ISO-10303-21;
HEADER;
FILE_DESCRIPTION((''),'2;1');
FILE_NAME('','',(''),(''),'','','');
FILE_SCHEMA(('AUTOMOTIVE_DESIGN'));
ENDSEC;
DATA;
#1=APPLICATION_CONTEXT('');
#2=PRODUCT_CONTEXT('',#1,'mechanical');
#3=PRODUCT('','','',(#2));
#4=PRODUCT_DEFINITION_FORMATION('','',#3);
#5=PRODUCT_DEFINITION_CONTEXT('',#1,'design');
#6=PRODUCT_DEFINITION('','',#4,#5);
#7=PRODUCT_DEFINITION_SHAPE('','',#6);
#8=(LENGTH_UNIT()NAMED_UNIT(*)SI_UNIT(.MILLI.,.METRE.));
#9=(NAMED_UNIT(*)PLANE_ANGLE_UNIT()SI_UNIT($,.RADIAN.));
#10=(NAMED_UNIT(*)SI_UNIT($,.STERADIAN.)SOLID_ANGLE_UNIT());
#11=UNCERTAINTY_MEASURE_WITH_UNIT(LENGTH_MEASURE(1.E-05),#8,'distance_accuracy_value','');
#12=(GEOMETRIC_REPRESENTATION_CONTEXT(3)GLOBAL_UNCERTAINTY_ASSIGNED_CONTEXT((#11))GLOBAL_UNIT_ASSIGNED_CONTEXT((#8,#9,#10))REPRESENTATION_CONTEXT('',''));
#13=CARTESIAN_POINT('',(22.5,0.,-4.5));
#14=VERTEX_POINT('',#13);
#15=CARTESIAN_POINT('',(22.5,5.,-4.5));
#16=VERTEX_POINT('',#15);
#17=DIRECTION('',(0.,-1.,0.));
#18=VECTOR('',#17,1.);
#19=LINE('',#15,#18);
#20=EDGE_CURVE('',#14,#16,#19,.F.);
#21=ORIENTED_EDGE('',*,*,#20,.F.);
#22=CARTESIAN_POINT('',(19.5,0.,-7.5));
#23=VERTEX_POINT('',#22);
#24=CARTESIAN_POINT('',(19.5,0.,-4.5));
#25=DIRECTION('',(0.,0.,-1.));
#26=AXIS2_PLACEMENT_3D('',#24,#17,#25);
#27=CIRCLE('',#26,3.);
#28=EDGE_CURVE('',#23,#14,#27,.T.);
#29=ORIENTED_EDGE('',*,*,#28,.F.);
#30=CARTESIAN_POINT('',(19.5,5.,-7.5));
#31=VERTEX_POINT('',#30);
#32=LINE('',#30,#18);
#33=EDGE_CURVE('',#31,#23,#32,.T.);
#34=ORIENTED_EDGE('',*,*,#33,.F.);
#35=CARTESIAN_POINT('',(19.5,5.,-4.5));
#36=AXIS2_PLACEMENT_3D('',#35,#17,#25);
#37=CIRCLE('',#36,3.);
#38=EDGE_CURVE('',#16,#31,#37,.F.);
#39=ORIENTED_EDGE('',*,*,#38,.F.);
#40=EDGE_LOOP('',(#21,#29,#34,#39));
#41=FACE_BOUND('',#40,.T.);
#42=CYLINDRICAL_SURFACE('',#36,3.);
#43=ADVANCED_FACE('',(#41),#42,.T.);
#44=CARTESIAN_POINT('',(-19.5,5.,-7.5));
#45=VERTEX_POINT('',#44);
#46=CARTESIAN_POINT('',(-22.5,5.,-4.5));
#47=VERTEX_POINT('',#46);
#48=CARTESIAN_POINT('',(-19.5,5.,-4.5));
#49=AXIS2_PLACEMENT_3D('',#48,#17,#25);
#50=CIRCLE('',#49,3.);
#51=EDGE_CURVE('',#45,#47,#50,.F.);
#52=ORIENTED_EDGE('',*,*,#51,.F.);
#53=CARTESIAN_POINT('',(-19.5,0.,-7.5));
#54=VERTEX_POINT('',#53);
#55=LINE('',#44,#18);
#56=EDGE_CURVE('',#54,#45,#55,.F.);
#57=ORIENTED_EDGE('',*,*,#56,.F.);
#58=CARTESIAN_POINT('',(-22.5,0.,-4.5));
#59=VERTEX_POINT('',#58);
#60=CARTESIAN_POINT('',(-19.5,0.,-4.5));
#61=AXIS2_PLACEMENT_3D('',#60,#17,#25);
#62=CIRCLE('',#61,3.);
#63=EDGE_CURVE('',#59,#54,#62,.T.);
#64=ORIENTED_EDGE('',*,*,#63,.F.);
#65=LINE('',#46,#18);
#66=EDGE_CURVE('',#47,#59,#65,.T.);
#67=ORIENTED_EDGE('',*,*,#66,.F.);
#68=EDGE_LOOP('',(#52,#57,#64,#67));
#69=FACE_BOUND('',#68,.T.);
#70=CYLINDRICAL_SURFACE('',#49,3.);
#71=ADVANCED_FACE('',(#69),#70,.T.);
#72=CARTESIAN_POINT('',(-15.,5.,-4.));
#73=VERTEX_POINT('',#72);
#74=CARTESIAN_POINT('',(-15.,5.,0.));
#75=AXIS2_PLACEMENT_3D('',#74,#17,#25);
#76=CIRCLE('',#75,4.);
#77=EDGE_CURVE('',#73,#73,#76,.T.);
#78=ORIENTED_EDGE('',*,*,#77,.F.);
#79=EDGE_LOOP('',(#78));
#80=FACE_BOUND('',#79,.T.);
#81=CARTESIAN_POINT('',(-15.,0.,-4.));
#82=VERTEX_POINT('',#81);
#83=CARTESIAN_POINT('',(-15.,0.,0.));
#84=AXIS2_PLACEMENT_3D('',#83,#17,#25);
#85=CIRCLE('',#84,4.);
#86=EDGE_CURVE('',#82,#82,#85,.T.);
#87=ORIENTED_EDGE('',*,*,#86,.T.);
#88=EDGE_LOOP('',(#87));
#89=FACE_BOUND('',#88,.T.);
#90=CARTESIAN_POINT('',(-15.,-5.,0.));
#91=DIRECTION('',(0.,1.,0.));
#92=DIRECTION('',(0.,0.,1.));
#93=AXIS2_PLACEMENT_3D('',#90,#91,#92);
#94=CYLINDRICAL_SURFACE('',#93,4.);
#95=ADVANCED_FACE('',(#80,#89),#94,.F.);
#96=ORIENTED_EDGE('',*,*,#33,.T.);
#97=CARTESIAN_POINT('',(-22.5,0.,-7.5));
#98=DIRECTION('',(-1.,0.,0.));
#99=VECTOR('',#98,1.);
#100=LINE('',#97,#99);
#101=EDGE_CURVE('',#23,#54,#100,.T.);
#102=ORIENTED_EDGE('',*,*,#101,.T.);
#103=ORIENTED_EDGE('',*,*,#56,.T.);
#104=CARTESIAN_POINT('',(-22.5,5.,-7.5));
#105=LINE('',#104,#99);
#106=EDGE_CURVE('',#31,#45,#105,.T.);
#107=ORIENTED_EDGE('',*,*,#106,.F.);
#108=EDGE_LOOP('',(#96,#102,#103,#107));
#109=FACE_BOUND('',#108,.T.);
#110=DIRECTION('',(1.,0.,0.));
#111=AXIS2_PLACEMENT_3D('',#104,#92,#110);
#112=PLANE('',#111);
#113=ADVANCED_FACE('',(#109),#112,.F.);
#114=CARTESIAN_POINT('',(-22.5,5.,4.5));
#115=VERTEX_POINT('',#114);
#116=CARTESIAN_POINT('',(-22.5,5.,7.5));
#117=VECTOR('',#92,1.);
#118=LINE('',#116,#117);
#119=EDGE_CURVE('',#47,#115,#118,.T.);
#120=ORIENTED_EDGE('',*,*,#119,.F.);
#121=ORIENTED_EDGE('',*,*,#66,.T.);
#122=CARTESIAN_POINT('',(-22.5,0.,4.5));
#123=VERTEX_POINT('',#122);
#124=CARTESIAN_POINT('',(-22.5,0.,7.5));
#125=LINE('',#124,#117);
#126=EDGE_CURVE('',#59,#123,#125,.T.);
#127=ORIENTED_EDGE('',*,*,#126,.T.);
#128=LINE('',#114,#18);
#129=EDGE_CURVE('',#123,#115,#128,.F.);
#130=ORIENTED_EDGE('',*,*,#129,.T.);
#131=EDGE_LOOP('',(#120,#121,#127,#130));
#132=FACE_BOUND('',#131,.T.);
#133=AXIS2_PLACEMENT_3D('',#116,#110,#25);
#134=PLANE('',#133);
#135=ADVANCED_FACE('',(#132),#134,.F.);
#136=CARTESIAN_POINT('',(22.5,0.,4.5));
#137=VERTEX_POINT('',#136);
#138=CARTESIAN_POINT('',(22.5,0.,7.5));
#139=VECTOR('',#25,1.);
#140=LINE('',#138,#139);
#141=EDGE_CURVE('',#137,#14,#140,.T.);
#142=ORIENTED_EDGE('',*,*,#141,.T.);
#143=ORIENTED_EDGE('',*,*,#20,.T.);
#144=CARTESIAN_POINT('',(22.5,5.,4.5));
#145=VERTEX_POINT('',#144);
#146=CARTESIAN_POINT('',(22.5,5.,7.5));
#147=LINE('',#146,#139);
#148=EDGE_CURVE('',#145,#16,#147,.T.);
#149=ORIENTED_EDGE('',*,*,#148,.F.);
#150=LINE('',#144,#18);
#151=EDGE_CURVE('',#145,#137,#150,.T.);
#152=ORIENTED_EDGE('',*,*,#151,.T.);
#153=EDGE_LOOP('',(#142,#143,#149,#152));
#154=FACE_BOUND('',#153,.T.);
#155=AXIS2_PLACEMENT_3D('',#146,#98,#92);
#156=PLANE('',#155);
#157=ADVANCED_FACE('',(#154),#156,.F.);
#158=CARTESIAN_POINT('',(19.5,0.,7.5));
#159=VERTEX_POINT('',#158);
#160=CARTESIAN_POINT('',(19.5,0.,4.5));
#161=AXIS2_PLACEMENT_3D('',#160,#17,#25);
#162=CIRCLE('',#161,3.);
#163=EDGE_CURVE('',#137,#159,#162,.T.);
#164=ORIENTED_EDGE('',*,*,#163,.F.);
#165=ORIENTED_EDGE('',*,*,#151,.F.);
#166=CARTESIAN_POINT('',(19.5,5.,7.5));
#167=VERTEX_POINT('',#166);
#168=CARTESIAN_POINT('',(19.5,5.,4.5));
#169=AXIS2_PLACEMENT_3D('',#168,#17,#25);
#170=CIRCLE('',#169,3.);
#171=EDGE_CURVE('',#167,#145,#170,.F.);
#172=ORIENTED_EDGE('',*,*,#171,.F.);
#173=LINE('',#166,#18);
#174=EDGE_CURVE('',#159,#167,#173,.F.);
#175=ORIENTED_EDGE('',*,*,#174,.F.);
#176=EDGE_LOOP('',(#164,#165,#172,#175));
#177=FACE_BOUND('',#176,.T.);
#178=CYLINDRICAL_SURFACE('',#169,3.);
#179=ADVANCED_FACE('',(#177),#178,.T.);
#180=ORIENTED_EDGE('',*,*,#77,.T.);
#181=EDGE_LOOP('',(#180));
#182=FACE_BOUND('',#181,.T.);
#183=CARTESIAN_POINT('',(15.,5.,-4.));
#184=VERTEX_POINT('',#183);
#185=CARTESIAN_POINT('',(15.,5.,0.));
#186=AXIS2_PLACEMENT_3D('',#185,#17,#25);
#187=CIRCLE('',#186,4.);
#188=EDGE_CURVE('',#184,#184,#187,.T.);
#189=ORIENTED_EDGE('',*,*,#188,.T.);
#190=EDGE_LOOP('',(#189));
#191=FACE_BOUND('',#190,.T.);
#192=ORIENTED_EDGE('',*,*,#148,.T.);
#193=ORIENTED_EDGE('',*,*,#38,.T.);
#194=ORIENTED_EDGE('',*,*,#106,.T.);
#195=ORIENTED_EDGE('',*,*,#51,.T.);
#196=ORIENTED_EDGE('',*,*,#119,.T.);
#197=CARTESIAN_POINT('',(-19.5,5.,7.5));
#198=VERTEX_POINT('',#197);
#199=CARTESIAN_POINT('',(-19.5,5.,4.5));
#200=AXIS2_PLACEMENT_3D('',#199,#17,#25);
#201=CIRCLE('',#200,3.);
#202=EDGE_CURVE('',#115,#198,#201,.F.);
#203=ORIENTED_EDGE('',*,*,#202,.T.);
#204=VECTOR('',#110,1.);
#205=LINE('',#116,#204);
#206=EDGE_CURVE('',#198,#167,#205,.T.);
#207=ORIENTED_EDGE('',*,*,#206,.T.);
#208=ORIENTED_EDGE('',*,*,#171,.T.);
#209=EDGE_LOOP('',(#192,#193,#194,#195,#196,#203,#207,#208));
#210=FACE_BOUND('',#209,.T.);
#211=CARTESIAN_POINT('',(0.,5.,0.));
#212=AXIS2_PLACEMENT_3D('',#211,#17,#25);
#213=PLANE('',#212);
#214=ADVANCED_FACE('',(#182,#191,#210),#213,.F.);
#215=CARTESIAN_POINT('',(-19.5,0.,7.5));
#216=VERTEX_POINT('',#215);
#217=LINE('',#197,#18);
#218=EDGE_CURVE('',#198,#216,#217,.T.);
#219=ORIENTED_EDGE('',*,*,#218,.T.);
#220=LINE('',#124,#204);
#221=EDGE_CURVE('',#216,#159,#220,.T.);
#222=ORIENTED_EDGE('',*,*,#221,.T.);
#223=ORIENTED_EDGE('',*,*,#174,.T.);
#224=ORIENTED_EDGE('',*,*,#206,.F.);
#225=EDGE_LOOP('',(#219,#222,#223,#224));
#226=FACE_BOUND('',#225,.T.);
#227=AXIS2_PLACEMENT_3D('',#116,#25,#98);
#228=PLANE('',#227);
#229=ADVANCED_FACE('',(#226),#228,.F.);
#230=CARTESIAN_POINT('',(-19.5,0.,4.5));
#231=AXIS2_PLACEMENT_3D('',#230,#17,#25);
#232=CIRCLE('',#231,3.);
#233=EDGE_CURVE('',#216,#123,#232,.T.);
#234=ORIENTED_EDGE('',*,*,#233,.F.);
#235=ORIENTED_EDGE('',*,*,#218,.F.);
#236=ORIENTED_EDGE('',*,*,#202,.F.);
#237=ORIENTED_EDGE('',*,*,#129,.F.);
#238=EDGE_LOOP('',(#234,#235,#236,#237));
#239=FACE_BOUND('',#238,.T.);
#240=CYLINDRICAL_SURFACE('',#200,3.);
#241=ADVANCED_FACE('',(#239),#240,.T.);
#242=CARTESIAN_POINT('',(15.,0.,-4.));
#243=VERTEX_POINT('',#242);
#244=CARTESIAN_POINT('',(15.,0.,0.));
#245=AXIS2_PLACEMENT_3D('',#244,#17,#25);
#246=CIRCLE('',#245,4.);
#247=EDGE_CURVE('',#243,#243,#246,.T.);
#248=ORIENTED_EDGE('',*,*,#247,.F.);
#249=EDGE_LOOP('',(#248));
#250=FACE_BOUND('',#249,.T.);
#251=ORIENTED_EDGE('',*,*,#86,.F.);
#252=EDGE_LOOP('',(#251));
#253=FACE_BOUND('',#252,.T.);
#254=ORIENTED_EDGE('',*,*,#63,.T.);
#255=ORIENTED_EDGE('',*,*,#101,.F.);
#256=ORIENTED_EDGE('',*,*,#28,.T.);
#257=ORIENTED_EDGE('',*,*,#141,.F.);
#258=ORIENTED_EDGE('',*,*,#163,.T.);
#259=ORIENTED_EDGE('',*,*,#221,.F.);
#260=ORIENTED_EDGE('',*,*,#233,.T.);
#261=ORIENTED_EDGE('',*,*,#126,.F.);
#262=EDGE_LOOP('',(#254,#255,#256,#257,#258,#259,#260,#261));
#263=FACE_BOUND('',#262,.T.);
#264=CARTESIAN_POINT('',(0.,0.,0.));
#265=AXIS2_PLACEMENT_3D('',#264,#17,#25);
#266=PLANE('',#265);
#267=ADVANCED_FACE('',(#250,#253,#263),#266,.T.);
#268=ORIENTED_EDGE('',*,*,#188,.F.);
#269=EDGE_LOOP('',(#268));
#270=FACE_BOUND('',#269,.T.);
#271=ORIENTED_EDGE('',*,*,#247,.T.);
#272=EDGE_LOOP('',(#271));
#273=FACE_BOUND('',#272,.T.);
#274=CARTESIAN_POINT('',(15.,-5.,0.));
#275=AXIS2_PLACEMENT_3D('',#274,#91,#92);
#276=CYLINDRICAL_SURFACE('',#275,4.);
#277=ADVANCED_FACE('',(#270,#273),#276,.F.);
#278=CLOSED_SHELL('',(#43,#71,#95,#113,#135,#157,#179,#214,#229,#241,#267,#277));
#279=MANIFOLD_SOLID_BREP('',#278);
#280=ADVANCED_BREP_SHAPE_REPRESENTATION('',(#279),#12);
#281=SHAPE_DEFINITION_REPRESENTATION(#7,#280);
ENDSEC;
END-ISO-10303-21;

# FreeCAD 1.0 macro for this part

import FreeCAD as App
import Part
import Sketcher

V = App.Vector


def edges_at(feature, points):
    """Names of the edges that pass closest to the given points."""
    edges = feature.Shape.Edges
    near = lambda p: min(range(len(edges)), key=lambda i: edges[i].distToShape(Part.Vertex(*p))[0])
    return sorted({f"Edge{near(p) + 1}" for p in points})


def add_polygon(sketch, points):
    """Adds a closed chain of lines whose ends are joined by coincident constraints."""
    first, n = sketch.GeometryCount, len(points)
    for a, b in zip(points, points[1:] + points[:1]):
        sketch.addGeometry(Part.LineSegment(App.Vector(*a, 0), App.Vector(*b, 0)), False)
    for i in range(n):
        sketch.addConstraint(Sketcher.Constraint("Coincident", first + i, 2, first + (i + 1) % n, 1))

doc = App.newDocument("Part")
params = doc.addObject("Spreadsheet::Sheet", "Params")
for row, (alias, value) in enumerate([
    ("sketch1_width", "45 mm"),
    ("sketch1_height", "15 mm"),
    ("pad1_length", "5 mm"),
    ("fillet_radius", "3 mm"),
    ("sketch2_diameter", "8 mm"),
    ("pocket1_length", "20 mm"),
], start=1):
    params.set(f"A{row}", alias)
    params.set(f"B{row}", "=" + value)
    params.setAlias(f"B{row}", alias)

body = doc.addObject("PartDesign::Body", "Body")

# Sketch on XZ plane
sketch1 = body.newObject("Sketcher::SketchObject", "Sketch")
sketch1.AttachmentSupport = (doc.getObject("XZ_Plane"), [""])
sketch1.MapMode = "FlatFace"
add_polygon(sketch1, [(-22.5, -7.5), (-22.5, 7.5), (22.5, 7.5), (22.5, -7.5)])  # lines 0-3
sketch1.addConstraint([
    Sketcher.Constraint("Vertical", 0),
    Sketcher.Constraint("Horizontal", 1),
    Sketcher.Constraint("Vertical", 2),
    Sketcher.Constraint("Horizontal", 3),
    Sketcher.Constraint("Symmetric", 0, 2, 2, 2, -1, 1),
    Sketcher.Constraint("DistanceX", 1, 1, 1, 2, 45.0),
    Sketcher.Constraint("DistanceY", 0, 1, 0, 2, 15.0),
])
sketch1.setExpression("Constraints[9]", "Params.sketch1_width")
sketch1.setExpression("Constraints[10]", "Params.sketch1_height")
pad1 = body.newObject("PartDesign::Pad", "Pad")
pad1.Profile = sketch1
pad1.setExpression("Length", "Params.pad1_length")
pad1.Reversed = True
doc.recompute()

fillet = body.newObject("PartDesign::Fillet", "Fillet")
fillet.Base = (pad1, edges_at(pad1, [
    (22.5, 2.5, 7.5),
    (-22.5, 2.5, 7.5),
    (-22.5, 2.5, -7.5),
    (22.5, 2.5, -7.5),
]))
fillet.setExpression("Radius", "Params.fillet_radius")

# Sketch on XZ plane
sketch2 = body.newObject("Sketcher::SketchObject", "Sketch001")
sketch2.AttachmentSupport = (doc.getObject("XZ_Plane"), [""])
sketch2.MapMode = "FlatFace"
sketch2.AttachmentOffset = App.Placement(V(0, 0, -5), App.Rotation())
sketch2.addGeometry([
    Part.Circle(V(-15, 0, 0), V(0, 0, 1), 4),
    Part.Circle(V(15, 0, 0), V(0, 0, 1), 4),
], False)
sketch2.addConstraint([
    Sketcher.Constraint("Equal", 0, 1),
    Sketcher.Constraint("Symmetric", 0, 3, 1, 3, -1, 1),
    Sketcher.Constraint("PointOnObject", 0, 3, -1),
    Sketcher.Constraint("Diameter", 0, 8.0),
    Sketcher.Constraint("DistanceX", 0, 3, -1, 1, 15.0),
])
sketch2.setExpression("Constraints[3]", "Params.sketch2_diameter")
pocket1 = body.newObject("PartDesign::Pocket", "Pocket")
pocket1.Profile = sketch2
pocket1.setExpression("Length", "Params.pocket1_length")
pocket1.Midplane = True

doc.recompute()
